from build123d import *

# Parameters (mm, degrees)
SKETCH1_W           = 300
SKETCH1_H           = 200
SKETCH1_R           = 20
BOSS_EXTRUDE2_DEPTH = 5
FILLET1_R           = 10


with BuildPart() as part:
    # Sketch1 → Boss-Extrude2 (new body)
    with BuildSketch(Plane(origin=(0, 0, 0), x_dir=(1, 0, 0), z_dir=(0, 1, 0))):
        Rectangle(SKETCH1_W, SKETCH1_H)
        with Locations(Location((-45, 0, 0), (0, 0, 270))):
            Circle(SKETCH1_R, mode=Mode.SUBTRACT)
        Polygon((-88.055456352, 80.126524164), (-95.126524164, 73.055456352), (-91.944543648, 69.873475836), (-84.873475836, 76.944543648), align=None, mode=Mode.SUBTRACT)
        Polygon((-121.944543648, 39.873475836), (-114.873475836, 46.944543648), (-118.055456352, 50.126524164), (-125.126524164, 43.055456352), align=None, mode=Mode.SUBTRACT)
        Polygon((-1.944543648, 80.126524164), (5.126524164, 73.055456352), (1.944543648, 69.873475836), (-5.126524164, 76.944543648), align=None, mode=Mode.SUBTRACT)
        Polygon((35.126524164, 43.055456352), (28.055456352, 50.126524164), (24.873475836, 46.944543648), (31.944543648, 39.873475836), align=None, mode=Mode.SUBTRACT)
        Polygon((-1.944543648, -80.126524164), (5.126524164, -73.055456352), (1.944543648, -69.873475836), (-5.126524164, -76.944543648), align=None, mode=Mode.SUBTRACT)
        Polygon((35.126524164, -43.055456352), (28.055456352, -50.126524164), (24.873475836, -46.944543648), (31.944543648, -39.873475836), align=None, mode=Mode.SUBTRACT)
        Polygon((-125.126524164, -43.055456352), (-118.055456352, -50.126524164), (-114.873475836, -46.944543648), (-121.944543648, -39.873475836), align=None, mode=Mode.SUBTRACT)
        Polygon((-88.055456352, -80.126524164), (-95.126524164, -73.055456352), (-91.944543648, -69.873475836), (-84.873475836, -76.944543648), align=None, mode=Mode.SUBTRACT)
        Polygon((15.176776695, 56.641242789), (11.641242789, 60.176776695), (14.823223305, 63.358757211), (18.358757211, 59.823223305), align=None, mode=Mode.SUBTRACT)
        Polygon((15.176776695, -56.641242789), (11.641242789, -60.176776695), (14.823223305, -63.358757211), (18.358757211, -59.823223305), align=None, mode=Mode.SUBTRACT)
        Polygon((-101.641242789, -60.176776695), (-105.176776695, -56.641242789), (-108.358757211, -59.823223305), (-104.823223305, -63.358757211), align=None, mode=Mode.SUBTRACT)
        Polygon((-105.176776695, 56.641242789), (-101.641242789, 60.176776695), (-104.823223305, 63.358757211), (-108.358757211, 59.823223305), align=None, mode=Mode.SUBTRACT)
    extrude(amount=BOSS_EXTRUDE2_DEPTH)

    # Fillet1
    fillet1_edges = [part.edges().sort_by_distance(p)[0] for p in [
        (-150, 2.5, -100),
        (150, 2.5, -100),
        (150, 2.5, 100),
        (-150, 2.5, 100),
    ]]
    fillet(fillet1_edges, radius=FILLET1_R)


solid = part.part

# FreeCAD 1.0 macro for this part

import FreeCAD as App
import Part
import Sketcher
Q = App.Units.Quantity


def edges_at(feature, points):
    """Names of the edges that pass closest to the given points."""
    edges = feature.Shape.Edges
    near = lambda p: min(range(len(edges)), key=lambda i: edges[i].distToShape(Part.Vertex(*p))[0])
    return sorted({f"Edge{near(p) + 1}" for p in points})

doc = App.newDocument("Part")
params = doc.addObject("Spreadsheet::Sheet", "Params")
for row, (alias, value) in enumerate([
    ("sketch1_diameter", "40 mm"),
    ("sketch1_width", "300 mm"),
    ("sketch1_height", "200 mm"),
    ("sketch1_length", "10 mm"),
    ("sketch1_length2", "5 mm"),
    ("pad1_length", "5 mm"),
    ("fillet_radius", "10 mm"),
], start=1):
    params.set(f"A{row}", alias)
    params.set(f"B{row}", "=" + value)
    params.setAlias(f"B{row}", alias)

body = doc.addObject("PartDesign::Body", "Body")

sketch1 = doc.addObject("Sketcher::SketchObject", "Sketch")
body.addObject(sketch1)
sketch1.AttachmentSupport = (doc.XZ_Plane, [""])
sketch1.MapMode = "FlatFace"
sketch1.addGeometry([
    Part.LineSegment(App.Vector(-150, -100, 0), App.Vector(-150, 100, 0)),
    Part.LineSegment(App.Vector(-150, 100, 0), App.Vector(150, 100, 0)),
    Part.LineSegment(App.Vector(150, 100, 0), App.Vector(150, -100, 0)),
    Part.LineSegment(App.Vector(150, -100, 0), App.Vector(-150, -100, 0)),
    Part.LineSegment(App.Vector(-84.9, 76.9, 0), App.Vector(-88.1, 80.1, 0)),
    Part.LineSegment(App.Vector(-88.1, 80.1, 0), App.Vector(-95.1, 73.1, 0)),
    Part.LineSegment(App.Vector(-95.1, 73.1, 0), App.Vector(-91.9, 69.9, 0)),
    Part.LineSegment(App.Vector(-91.9, 69.9, 0), App.Vector(-84.9, 76.9, 0)),
    Part.LineSegment(App.Vector(-118.1, 50.1, 0), App.Vector(-125.1, 43.1, 0)),
    Part.LineSegment(App.Vector(-125.1, 43.1, 0), App.Vector(-121.9, 39.9, 0)),
    Part.LineSegment(App.Vector(-121.9, 39.9, 0), App.Vector(-114.9, 46.9, 0)),
    Part.LineSegment(App.Vector(-114.9, 46.9, 0), App.Vector(-118.1, 50.1, 0)),
    Part.LineSegment(App.Vector(-105.2, 56.6, 0), App.Vector(-101.6, 60.2, 0)),
    Part.LineSegment(App.Vector(-101.6, 60.2, 0), App.Vector(-104.8, 63.4, 0)),
    Part.LineSegment(App.Vector(-104.8, 63.4, 0), App.Vector(-108.4, 59.8, 0)),
    Part.LineSegment(App.Vector(-108.4, 59.8, 0), App.Vector(-105.2, 56.6, 0)),
    Part.LineSegment(App.Vector(5.1, 73.1, 0), App.Vector(-1.9, 80.1, 0)),
    Part.LineSegment(App.Vector(-1.9, 80.1, 0), App.Vector(-5.1, 76.9, 0)),
    Part.LineSegment(App.Vector(-5.1, 76.9, 0), App.Vector(1.9, 69.9, 0)),
    Part.LineSegment(App.Vector(1.9, 69.9, 0), App.Vector(5.1, 73.1, 0)),
    Part.LineSegment(App.Vector(11.6, 60.2, 0), App.Vector(15.2, 56.6, 0)),
    Part.LineSegment(App.Vector(15.2, 56.6, 0), App.Vector(18.4, 59.8, 0)),
    Part.LineSegment(App.Vector(18.4, 59.8, 0), App.Vector(14.8, 63.4, 0)),
    Part.LineSegment(App.Vector(14.8, 63.4, 0), App.Vector(11.6, 60.2, 0)),
    Part.LineSegment(App.Vector(31.9, 39.9, 0), App.Vector(35.1, 43.1, 0)),
    Part.LineSegment(App.Vector(35.1, 43.1, 0), App.Vector(28.1, 50.1, 0)),
    Part.LineSegment(App.Vector(28.1, 50.1, 0), App.Vector(24.9, 46.9, 0)),
    Part.LineSegment(App.Vector(24.9, 46.9, 0), App.Vector(31.9, 39.9, 0)),
    Part.LineSegment(App.Vector(-114.9, -46.9, 0), App.Vector(-121.9, -39.9, 0)),
    Part.LineSegment(App.Vector(-121.9, -39.9, 0), App.Vector(-125.1, -43.1, 0)),
    Part.LineSegment(App.Vector(-125.1, -43.1, 0), App.Vector(-118.1, -50.1, 0)),
    Part.LineSegment(App.Vector(-118.1, -50.1, 0), App.Vector(-114.9, -46.9, 0)),
    Part.LineSegment(App.Vector(-101.6, -60.2, 0), App.Vector(-105.2, -56.6, 0)),
    Part.LineSegment(App.Vector(-105.2, -56.6, 0), App.Vector(-108.4, -59.8, 0)),
    Part.LineSegment(App.Vector(-108.4, -59.8, 0), App.Vector(-104.8, -63.4, 0)),
    Part.LineSegment(App.Vector(-104.8, -63.4, 0), App.Vector(-101.6, -60.2, 0)),
    Part.LineSegment(App.Vector(-95.1, -73.1, 0), App.Vector(-88.1, -80.1, 0)),
    Part.LineSegment(App.Vector(-88.1, -80.1, 0), App.Vector(-84.9, -76.9, 0)),
    Part.LineSegment(App.Vector(-84.9, -76.9, 0), App.Vector(-91.9, -69.9, 0)),
    Part.LineSegment(App.Vector(-91.9, -69.9, 0), App.Vector(-95.1, -73.1, 0)),
    Part.Circle(App.Vector(-45, 0, 0), App.Vector(0, 0, 1), 20),
    Part.LineSegment(App.Vector(18.4, -59.8, 0), App.Vector(15.2, -56.6, 0)),
    Part.LineSegment(App.Vector(15.2, -56.6, 0), App.Vector(11.6, -60.2, 0)),
    Part.LineSegment(App.Vector(11.6, -60.2, 0), App.Vector(14.8, -63.4, 0)),
    Part.LineSegment(App.Vector(14.8, -63.4, 0), App.Vector(18.4, -59.8, 0)),
    Part.LineSegment(App.Vector(28.1, -50.1, 0), App.Vector(35.1, -43.1, 0)),
    Part.LineSegment(App.Vector(35.1, -43.1, 0), App.Vector(31.9, -39.9, 0)),
    Part.LineSegment(App.Vector(31.9, -39.9, 0), App.Vector(24.9, -46.9, 0)),
    Part.LineSegment(App.Vector(24.9, -46.9, 0), App.Vector(28.1, -50.1, 0)),
    Part.LineSegment(App.Vector(-5.1, -76.9, 0), App.Vector(-1.9, -80.1, 0)),
    Part.LineSegment(App.Vector(-1.9, -80.1, 0), App.Vector(5.1, -73.1, 0)),
    Part.LineSegment(App.Vector(5.1, -73.1, 0), App.Vector(1.9, -69.9, 0)),
    Part.LineSegment(App.Vector(1.9, -69.9, 0), App.Vector(-5.1, -76.9, 0)),
], False)
sketch1.addConstraint([
    Sketcher.Constraint("Coincident", 0, 2, 1, 1),
    Sketcher.Constraint("Coincident", 1, 2, 2, 1),
    Sketcher.Constraint("Coincident", 2, 2, 3, 1),
    Sketcher.Constraint("Coincident", 3, 2, 0, 1),
    Sketcher.Constraint("Coincident", 4, 2, 5, 1),
    Sketcher.Constraint("Coincident", 5, 2, 6, 1),
    Sketcher.Constraint("Coincident", 6, 2, 7, 1),
    Sketcher.Constraint("Coincident", 7, 2, 4, 1),
    Sketcher.Constraint("Coincident", 8, 2, 9, 1),
    Sketcher.Constraint("Coincident", 9, 2, 10, 1),
    Sketcher.Constraint("Coincident", 10, 2, 11, 1),
    Sketcher.Constraint("Coincident", 11, 2, 8, 1),
    Sketcher.Constraint("Coincident", 12, 2, 13, 1),
    Sketcher.Constraint("Coincident", 13, 2, 14, 1),
    Sketcher.Constraint("Coincident", 14, 2, 15, 1),
    Sketcher.Constraint("Coincident", 15, 2, 12, 1),
    Sketcher.Constraint("Coincident", 16, 2, 17, 1),
    Sketcher.Constraint("Coincident", 17, 2, 18, 1),
    Sketcher.Constraint("Coincident", 18, 2, 19, 1),
    Sketcher.Constraint("Coincident", 19, 2, 16, 1),
    Sketcher.Constraint("Coincident", 20, 2, 21, 1),
    Sketcher.Constraint("Coincident", 21, 2, 22, 1),
    Sketcher.Constraint("Coincident", 22, 2, 23, 1),
    Sketcher.Constraint("Coincident", 23, 2, 20, 1),
    Sketcher.Constraint("Coincident", 24, 2, 25, 1),
    Sketcher.Constraint("Coincident", 25, 2, 26, 1),
    Sketcher.Constraint("Coincident", 26, 2, 27, 1),
    Sketcher.Constraint("Coincident", 27, 2, 24, 1),
    Sketcher.Constraint("Coincident", 28, 2, 29, 1),
    Sketcher.Constraint("Coincident", 29, 2, 30, 1),
    Sketcher.Constraint("Coincident", 30, 2, 31, 1),
    Sketcher.Constraint("Coincident", 31, 2, 28, 1),
    Sketcher.Constraint("Coincident", 32, 2, 33, 1),
    Sketcher.Constraint("Coincident", 33, 2, 34, 1),
    Sketcher.Constraint("Coincident", 34, 2, 35, 1),
    Sketcher.Constraint("Coincident", 35, 2, 32, 1),
    Sketcher.Constraint("Coincident", 36, 2, 37, 1),
    Sketcher.Constraint("Coincident", 37, 2, 38, 1),
    Sketcher.Constraint("Coincident", 38, 2, 39, 1),
    Sketcher.Constraint("Coincident", 39, 2, 36, 1),
    Sketcher.Constraint("Coincident", 41, 2, 42, 1),
    Sketcher.Constraint("Coincident", 42, 2, 43, 1),
    Sketcher.Constraint("Coincident", 43, 2, 44, 1),
    Sketcher.Constraint("Coincident", 44, 2, 41, 1),
    Sketcher.Constraint("Coincident", 45, 2, 46, 1),
    Sketcher.Constraint("Coincident", 46, 2, 47, 1),
    Sketcher.Constraint("Coincident", 47, 2, 48, 1),
    Sketcher.Constraint("Coincident", 48, 2, 45, 1),
    Sketcher.Constraint("Coincident", 49, 2, 50, 1),
    Sketcher.Constraint("Coincident", 50, 2, 51, 1),
    Sketcher.Constraint("Coincident", 51, 2, 52, 1),
    Sketcher.Constraint("Coincident", 52, 2, 49, 1),
    Sketcher.Constraint("Vertical", 0),
    Sketcher.Constraint("Horizontal", 1),
    Sketcher.Constraint("Vertical", 2),
    Sketcher.Constraint("Horizontal", 3),
    Sketcher.Constraint("Symmetric", 0, 2, 2, 2, -1, 1),
    Sketcher.Constraint("Symmetric", 9, 2, 28, 2, -1),
    Sketcher.Constraint("Symmetric", 8, 2, 29, 2, -1),
    Sketcher.Constraint("Symmetric", 11, 2, 30, 2, -1),
    Sketcher.Constraint("Symmetric", 10, 2, 31, 2, -1),
    Sketcher.Constraint("Symmetric", 15, 2, 32, 2, -1),
    Sketcher.Constraint("Symmetric", 14, 2, 33, 2, -1),
    Sketcher.Constraint("Symmetric", 13, 2, 34, 2, -1),
    Sketcher.Constraint("Symmetric", 12, 2, 35, 2, -1),
    Sketcher.Constraint("Symmetric", 4, 2, 36, 2, -1),
    Sketcher.Constraint("Symmetric", 7, 2, 37, 2, -1),
    Sketcher.Constraint("Symmetric", 6, 2, 38, 2, -1),
    Sketcher.Constraint("Symmetric", 5, 2, 39, 2, -1),
    Sketcher.Constraint("Symmetric", 20, 2, 41, 2, -1),
    Sketcher.Constraint("Symmetric", 23, 2, 42, 2, -1),
    Sketcher.Constraint("Symmetric", 22, 2, 43, 2, -1),
    Sketcher.Constraint("Symmetric", 21, 2, 44, 2, -1),
    Sketcher.Constraint("Symmetric", 24, 2, 45, 2, -1),
    Sketcher.Constraint("Symmetric", 27, 2, 46, 2, -1),
    Sketcher.Constraint("Symmetric", 26, 2, 47, 2, -1),
    Sketcher.Constraint("Symmetric", 25, 2, 48, 2, -1),
    Sketcher.Constraint("Symmetric", 16, 2, 49, 2, -1),
    Sketcher.Constraint("Symmetric", 19, 2, 50, 2, -1),
    Sketcher.Constraint("Symmetric", 18, 2, 51, 2, -1),
    Sketcher.Constraint("Symmetric", 17, 2, 52, 2, -1),
    Sketcher.Constraint("PointOnObject", 40, 3, -1),
    Sketcher.Constraint("Perpendicular", 4, 5),
    Sketcher.Constraint("Perpendicular", 5, 6),
    Sketcher.Constraint("Perpendicular", 6, 7),
    Sketcher.Constraint("Parallel", 7, 8),
    Sketcher.Constraint("Perpendicular", 8, 9),
    Sketcher.Constraint("Perpendicular", 9, 10),
    Sketcher.Constraint("Perpendicular", 10, 11),
    Sketcher.Constraint("Perpendicular", 11, 12),
    Sketcher.Constraint("Perpendicular", 12, 13),
    Sketcher.Constraint("Perpendicular", 13, 14),
    Sketcher.Constraint("Perpendicular", 14, 15),
    Sketcher.Constraint("Parallel", 15, 16),
    Sketcher.Constraint("Perpendicular", 16, 17),
    Sketcher.Constraint("Perpendicular", 17, 18),
    Sketcher.Constraint("Perpendicular", 18, 19),
    Sketcher.Constraint("Perpendicular", 19, 20),
    Sketcher.Constraint("Perpendicular", 20, 21),
    Sketcher.Constraint("Perpendicular", 21, 22),
    Sketcher.Constraint("Perpendicular", 22, 23),
    Sketcher.Constraint("Parallel", 23, 24),
    Sketcher.Constraint("Perpendicular", 24, 25),
    Sketcher.Constraint("Perpendicular", 25, 26),
    Sketcher.Constraint("Perpendicular", 26, 27),
    Sketcher.Constraint("Parallel", 27, 28),
    Sketcher.Constraint("Horizontal", 4, 2, 16, 2),
    Sketcher.Constraint("Horizontal", 7, 2, 17, 2),
    Sketcher.Constraint("Horizontal", 6, 2, 18, 2),
    Sketcher.Constraint("Horizontal", 15, 2, 20, 2),
    Sketcher.Constraint("Horizontal", 14, 2, 21, 2),
    Sketcher.Constraint("Horizontal", 13, 2, 22, 2),
    Sketcher.Constraint("Horizontal", 8, 2, 24, 2),
    Sketcher.Constraint("Horizontal", 11, 2, 25, 2),
    Sketcher.Constraint("Horizontal", 10, 2, 26, 2),
    Sketcher.Constraint("Equal", 7, 8),
    Sketcher.Constraint("Equal", 6, 9),
    Sketcher.Constraint("Equal", 11, 13),
    Sketcher.Constraint("Diameter", 40, Q("40 mm")),
    Sketcher.Constraint("DistanceX", 1, 1, 1, 2, Q("300 mm")),
    Sketcher.Constraint("DistanceY", 0, 1, 0, 2, Q("200 mm")),
    Sketcher.Constraint("Distance", 5, Q("10 mm")),
    Sketcher.Constraint("Distance", 12, Q("5 mm")),
    Sketcher.Constraint("DistanceX", 40, 3, -1, 1, Q("45 mm")),
    Sketcher.Constraint("DistanceX", 8, 2, 5, 2, Q("30 mm")),
    Sketcher.Constraint("DistanceY", 8, 2, 5, 2, Q("30 mm")),
    Sketcher.Constraint("DistanceX", 6, 2, 16, 2, Q("90 mm")),
    Sketcher.Constraint("DistanceX", 19, 2, 24, 2, Q("30 mm")),
    Sketcher.Constraint("DistanceY", 29, 2, 10, 2, Q("90 mm")),
    Sketcher.Constraint("Distance", 4, Q("4.5 mm")),
    Sketcher.Constraint("DistanceX", 12, 2, 6, 2, Q("9.696699 mm")),
    Sketcher.Constraint("DistanceY", 12, 2, 6, 2, Q("9.696699 mm")),
    Sketcher.Constraint("DistanceX", 17, 2, 20, 2, Q("20.303301 mm")),
    Sketcher.Constraint("DistanceX", 4, 2, -1, 1, Q("88.055456 mm")),
])
sketch1.setExpression("Constraints[118]", "Params.sketch1_diameter")
sketch1.setExpression("Constraints[119]", "Params.sketch1_width")
sketch1.setExpression("Constraints[120]", "Params.sketch1_height")
sketch1.setExpression("Constraints[121]", "Params.sketch1_length")
sketch1.setExpression("Constraints[122]", "Params.sketch1_length2")
pad1 = doc.addObject("PartDesign::Pad", "Pad")
body.addObject(pad1)
pad1.Profile = sketch1
pad1.setExpression("Length", "Params.pad1_length")
pad1.Reversed = True
doc.recompute()

fillet = doc.addObject("PartDesign::Fillet", "Fillet")
body.addObject(fillet)
fillet.Base = (pad1, edges_at(pad1, [
    (-150, 2.5, -100),
    (150, 2.5, -100),
    (150, 2.5, 100),
    (-150, 2.5, 100),
]))
fillet.setExpression("Radius", "Params.fillet_radius")

doc.recompute()
